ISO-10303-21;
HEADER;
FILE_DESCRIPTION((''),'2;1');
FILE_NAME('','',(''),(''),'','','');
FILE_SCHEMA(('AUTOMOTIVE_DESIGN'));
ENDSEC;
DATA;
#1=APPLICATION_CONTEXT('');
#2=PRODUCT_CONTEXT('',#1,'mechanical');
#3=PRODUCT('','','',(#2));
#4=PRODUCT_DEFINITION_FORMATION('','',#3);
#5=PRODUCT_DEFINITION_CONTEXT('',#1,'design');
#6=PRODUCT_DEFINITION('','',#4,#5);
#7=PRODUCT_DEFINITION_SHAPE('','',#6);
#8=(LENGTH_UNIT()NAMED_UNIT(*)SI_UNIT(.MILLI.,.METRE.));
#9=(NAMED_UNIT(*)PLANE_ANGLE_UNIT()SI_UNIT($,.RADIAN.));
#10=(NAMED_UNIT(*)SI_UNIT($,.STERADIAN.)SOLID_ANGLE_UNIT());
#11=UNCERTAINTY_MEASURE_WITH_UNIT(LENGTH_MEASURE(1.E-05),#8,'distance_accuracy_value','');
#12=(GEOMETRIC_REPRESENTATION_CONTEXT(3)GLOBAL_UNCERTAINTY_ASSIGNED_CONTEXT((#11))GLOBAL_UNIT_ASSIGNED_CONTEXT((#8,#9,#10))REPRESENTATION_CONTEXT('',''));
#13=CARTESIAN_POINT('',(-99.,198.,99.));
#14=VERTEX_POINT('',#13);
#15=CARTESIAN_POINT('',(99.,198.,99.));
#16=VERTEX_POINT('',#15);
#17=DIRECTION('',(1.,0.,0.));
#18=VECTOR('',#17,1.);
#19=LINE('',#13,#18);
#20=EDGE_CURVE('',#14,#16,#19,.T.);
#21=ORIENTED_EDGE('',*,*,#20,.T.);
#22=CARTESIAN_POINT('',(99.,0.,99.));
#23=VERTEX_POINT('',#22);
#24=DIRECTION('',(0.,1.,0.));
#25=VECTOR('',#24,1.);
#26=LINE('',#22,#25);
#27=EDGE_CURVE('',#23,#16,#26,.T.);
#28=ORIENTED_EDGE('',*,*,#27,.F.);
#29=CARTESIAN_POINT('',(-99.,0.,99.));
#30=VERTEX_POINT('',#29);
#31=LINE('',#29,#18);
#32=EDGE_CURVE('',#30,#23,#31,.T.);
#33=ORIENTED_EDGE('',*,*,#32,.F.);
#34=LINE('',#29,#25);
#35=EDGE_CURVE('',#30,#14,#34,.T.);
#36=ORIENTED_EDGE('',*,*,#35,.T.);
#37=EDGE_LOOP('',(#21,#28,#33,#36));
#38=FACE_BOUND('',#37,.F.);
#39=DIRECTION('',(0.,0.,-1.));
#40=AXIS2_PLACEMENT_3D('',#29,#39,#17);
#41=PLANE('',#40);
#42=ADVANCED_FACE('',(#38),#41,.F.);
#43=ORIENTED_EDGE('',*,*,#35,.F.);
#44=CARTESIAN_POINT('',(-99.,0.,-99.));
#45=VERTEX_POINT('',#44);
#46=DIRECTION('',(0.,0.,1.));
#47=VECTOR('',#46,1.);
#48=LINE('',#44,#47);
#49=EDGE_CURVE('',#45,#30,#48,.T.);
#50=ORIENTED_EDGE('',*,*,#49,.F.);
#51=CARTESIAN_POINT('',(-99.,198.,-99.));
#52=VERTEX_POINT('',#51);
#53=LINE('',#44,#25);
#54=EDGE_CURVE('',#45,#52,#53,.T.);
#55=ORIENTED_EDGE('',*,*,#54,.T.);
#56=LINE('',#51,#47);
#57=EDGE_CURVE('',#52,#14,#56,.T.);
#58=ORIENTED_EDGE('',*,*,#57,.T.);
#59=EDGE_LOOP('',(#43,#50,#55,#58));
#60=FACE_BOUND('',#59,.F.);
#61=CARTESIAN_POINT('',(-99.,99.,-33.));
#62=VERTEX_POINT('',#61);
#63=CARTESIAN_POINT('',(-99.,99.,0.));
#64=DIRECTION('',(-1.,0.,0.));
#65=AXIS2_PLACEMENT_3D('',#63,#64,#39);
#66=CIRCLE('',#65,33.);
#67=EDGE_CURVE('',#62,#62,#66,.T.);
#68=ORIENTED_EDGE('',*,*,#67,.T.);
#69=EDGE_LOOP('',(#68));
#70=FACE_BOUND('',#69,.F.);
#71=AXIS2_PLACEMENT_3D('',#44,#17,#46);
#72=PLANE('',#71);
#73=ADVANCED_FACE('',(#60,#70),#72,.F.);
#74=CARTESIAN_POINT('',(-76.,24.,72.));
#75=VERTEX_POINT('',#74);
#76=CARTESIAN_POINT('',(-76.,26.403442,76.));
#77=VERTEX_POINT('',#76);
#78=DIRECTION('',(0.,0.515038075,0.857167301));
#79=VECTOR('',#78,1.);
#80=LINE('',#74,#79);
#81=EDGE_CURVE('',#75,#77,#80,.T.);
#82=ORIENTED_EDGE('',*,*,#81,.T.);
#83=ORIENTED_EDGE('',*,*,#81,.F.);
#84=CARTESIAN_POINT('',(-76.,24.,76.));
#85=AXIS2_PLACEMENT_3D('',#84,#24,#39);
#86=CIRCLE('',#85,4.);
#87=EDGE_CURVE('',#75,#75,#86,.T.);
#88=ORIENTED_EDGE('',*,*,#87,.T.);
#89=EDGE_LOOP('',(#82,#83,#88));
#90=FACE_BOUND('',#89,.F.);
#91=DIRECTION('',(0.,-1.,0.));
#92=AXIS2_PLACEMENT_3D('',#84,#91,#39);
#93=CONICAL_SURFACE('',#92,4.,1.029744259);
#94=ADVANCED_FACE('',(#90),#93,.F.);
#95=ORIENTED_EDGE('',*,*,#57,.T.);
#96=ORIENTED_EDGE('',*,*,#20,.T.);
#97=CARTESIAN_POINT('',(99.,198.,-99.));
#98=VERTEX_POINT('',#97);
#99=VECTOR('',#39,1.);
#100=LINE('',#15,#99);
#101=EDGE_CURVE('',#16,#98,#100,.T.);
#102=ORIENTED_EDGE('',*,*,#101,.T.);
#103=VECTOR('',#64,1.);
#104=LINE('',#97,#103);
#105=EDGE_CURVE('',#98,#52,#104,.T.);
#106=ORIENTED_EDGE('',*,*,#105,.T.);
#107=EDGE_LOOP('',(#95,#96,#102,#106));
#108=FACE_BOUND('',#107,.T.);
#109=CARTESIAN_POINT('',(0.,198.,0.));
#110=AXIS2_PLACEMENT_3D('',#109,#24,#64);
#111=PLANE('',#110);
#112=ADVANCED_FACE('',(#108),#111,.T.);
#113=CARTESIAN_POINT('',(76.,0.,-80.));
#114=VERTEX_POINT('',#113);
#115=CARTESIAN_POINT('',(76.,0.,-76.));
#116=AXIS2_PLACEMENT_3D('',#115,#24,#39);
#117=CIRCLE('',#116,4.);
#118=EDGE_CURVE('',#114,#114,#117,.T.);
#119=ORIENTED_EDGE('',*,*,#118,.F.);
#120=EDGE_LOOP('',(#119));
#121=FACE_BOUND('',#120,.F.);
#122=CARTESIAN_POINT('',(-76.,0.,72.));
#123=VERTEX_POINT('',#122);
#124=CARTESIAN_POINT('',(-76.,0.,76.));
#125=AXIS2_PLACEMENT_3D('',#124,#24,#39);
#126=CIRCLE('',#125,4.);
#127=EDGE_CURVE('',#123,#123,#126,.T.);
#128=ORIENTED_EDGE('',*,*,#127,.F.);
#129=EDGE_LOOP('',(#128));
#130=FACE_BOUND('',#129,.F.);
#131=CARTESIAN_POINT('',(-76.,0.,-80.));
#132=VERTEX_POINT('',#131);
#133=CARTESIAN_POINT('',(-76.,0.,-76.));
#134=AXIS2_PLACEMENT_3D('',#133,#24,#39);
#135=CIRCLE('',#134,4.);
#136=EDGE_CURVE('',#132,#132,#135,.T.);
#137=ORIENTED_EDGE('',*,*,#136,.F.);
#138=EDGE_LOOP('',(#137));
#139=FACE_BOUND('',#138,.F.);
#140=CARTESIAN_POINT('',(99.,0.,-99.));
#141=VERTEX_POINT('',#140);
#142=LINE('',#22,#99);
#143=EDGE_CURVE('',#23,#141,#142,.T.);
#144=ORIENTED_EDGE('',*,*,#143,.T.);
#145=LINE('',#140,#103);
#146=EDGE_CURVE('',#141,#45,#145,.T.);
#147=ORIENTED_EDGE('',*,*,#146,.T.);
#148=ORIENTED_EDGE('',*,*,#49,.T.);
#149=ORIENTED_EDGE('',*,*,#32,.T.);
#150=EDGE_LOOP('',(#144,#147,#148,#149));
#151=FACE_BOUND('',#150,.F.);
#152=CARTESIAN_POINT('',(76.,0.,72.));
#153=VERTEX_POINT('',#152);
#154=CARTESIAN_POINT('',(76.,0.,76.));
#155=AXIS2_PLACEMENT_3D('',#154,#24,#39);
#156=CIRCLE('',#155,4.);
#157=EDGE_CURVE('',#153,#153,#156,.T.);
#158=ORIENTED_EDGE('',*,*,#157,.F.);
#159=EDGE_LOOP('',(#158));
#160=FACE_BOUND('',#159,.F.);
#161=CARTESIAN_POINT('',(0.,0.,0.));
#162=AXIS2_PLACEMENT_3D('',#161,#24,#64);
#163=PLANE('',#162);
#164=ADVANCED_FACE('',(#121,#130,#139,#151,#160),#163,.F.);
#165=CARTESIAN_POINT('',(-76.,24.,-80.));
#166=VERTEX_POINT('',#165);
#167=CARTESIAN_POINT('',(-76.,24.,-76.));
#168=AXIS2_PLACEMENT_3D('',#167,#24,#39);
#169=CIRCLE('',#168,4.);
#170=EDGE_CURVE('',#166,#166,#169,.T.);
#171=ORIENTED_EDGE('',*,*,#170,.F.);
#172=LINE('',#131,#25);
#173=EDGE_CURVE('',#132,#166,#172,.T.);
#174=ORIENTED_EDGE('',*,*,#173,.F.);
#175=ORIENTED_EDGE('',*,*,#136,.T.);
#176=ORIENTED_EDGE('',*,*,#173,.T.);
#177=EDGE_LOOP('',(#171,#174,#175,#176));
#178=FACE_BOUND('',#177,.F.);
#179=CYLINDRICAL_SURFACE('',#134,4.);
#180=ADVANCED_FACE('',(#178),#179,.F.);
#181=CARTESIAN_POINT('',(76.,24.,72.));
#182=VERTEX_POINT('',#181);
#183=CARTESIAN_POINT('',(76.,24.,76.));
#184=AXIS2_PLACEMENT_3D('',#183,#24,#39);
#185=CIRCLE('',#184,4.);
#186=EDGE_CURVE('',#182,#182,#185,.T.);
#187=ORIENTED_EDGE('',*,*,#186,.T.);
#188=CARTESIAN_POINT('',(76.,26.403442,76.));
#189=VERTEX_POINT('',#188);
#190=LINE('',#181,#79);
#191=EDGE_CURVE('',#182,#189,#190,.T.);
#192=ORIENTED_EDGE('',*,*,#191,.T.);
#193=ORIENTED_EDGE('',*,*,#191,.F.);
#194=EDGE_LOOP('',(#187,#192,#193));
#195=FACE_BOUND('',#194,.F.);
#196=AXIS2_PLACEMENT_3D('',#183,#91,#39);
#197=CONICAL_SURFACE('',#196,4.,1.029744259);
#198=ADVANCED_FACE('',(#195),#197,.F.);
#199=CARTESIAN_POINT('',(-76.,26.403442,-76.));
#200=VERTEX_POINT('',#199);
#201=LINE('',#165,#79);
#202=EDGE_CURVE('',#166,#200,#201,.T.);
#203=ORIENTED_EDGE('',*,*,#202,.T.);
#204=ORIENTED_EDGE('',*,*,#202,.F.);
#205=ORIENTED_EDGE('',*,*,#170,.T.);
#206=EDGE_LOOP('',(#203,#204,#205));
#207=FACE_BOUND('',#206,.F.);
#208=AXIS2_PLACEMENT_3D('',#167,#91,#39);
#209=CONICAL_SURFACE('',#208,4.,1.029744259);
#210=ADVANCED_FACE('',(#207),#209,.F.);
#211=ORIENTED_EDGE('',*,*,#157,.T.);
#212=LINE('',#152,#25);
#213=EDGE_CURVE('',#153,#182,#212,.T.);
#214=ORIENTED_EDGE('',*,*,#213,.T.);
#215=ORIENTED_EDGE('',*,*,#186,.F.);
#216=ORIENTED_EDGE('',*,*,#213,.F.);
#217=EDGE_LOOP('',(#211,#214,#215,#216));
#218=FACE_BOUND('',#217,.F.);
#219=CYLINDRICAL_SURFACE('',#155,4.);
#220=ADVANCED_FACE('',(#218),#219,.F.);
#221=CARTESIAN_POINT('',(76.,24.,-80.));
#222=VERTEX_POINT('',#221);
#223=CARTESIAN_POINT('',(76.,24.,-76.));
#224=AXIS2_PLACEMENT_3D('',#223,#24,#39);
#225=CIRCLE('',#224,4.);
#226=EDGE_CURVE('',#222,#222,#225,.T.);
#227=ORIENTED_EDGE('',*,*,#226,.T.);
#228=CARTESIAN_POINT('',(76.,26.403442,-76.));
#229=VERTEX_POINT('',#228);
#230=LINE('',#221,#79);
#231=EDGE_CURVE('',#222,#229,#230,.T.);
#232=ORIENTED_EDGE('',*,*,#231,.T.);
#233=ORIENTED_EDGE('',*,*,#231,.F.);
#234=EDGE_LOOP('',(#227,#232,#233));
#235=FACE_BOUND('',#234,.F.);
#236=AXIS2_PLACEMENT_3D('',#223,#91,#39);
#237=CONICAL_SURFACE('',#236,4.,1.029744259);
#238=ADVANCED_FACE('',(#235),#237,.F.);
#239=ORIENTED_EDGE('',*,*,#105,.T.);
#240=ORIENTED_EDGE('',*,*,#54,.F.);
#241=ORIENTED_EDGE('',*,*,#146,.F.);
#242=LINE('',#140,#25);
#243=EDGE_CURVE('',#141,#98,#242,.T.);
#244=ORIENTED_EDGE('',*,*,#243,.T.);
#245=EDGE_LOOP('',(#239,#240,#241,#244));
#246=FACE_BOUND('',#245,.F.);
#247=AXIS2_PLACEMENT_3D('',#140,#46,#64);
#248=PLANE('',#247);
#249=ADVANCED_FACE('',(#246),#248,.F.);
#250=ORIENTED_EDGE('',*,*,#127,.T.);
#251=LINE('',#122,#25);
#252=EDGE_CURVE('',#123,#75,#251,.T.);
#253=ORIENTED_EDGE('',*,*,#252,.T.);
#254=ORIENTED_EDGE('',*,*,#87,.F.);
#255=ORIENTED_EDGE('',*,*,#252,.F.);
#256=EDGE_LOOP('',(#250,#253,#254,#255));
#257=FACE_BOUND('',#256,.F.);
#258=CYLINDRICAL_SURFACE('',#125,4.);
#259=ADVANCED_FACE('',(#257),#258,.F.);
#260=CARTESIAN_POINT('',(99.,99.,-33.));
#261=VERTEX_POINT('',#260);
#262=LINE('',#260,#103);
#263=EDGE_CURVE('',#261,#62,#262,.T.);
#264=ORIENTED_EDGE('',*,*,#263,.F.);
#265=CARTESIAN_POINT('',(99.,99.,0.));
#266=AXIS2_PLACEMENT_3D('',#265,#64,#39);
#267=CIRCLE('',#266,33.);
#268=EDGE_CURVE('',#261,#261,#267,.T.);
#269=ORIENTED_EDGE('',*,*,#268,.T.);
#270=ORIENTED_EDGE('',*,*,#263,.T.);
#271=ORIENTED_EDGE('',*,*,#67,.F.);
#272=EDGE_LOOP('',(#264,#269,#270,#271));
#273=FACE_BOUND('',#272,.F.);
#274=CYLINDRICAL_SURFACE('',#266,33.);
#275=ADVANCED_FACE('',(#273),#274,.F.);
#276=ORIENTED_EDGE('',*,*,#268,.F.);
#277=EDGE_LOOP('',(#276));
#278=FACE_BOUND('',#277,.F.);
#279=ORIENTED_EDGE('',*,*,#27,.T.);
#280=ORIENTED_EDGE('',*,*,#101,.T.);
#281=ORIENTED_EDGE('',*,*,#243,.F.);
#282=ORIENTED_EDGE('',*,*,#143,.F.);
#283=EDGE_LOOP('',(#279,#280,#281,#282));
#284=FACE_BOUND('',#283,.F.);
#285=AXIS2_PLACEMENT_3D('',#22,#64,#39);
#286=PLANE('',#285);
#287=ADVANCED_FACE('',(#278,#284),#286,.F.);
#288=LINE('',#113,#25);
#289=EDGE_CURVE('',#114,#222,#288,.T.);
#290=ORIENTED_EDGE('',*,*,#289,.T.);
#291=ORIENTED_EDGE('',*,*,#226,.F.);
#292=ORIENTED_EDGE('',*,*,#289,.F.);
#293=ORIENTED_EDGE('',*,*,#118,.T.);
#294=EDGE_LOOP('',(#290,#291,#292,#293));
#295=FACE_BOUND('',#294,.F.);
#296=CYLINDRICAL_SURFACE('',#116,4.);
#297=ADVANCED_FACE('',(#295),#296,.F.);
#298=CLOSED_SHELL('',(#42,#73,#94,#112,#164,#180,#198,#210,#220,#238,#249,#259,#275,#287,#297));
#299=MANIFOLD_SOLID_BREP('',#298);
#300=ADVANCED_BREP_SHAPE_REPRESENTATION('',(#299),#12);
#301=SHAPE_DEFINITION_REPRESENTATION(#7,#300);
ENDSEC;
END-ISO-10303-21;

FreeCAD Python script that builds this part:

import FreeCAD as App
import Part
import Sketcher

V = App.Vector
Q = App.Units.Quantity


def add_polygon(sketch, points):
    """Adds a closed chain of lines whose ends are joined by coincident constraints."""
    first, n = sketch.GeometryCount, len(points)
    for a, b in zip(points, points[1:] + points[:1]):
        sketch.addGeometry(Part.LineSegment(App.Vector(*a, 0), App.Vector(*b, 0)), False)
    for i in range(n):
        sketch.addConstraint(Sketcher.Constraint("Coincident", first + i, 2, first + (i + 1) % n, 1))

doc = App.newDocument("Part")
body = doc.addObject("PartDesign::Body", "Body")

# Sketch on XZ plane
sketch1 = doc.addObject("Sketcher::SketchObject", "Sketch")
body.addObject(sketch1)
sketch1.AttachmentSupport = (doc.XZ_Plane, [""])
sketch1.MapMode = "FlatFace"
add_polygon(sketch1, [(-99, -99), (-99, 99), (99, 99), (99, -99)])  # lines 0-3
sketch1.addConstraint([
    Sketcher.Constraint("Vertical", 0),
    Sketcher.Constraint("Horizontal", 1),
    Sketcher.Constraint("Vertical", 2),
    Sketcher.Constraint("Horizontal", 3),
    Sketcher.Constraint("Symmetric", 0, 2, 2, 2, -1, 1),
    Sketcher.Constraint("Equal", 3, 0),
    Sketcher.Constraint("DistanceX", 1, 1, 1, 2, Q("198 mm")),
])
pad1 = doc.addObject("PartDesign::Pad", "Pad")
body.addObject(pad1)
pad1.Profile = sketch1
pad1.Length = 198
pad1.Reversed = True

# Sketch on YZ plane
sketch2 = doc.addObject("Sketcher::SketchObject", "Sketch001")
body.addObject(sketch2)
sketch2.AttachmentSupport = (doc.YZ_Plane, [""])
sketch2.MapMode = "FlatFace"
sketch2.AttachmentOffset = App.Placement(V(0, 0, 99), App.Rotation())
sketch2.addGeometry(Part.Circle(V(99, 0, 0), V(0, 0, 1), 33), False)
sketch2.addConstraint([
    Sketcher.Constraint("PointOnObject", 0, 3, -1),
    Sketcher.Constraint("Diameter", 0, Q("66 mm")),
    Sketcher.Constraint("DistanceX", -1, 1, 0, 3, Q("99 mm")),
])
doc.recompute()
hole = doc.addObject("PartDesign::Hole", "Hole")
body.addObject(hole)
hole.Profile = sketch2
hole.ThreadType = "None"
hole.Diameter = 66
hole.DepthType = "Dimension"
hole.Depth = 198
hole.DrillPoint = "Flat"

# Sketch on XZ plane
sketch3 = doc.addObject("Sketcher::SketchObject", "Sketch002")
body.addObject(sketch3)
sketch3.AttachmentSupport = (doc.XZ_Plane, [""])
sketch3.MapMode = "FlatFace"
sketch3.addGeometry([
    Part.Circle(V(-76, -76, 0), V(0, 0, 1), 4),
    Part.Circle(V(76, -76, 0), V(0, 0, 1), 4),
    Part.Circle(V(76, 76, 0), V(0, 0, 1), 4),
    Part.Circle(V(-76, 76, 0), V(0, 0, 1), 4),
], False)
sketch3.addConstraint([
    Sketcher.Constraint("Equal", 0, 1),
    Sketcher.Constraint("Equal", 1, 2),
    Sketcher.Constraint("Equal", 2, 3),
    Sketcher.Constraint("Symmetric", 0, 3, 2, 3, -1, 1),
    Sketcher.Constraint("Symmetric", 1, 3, 3, 3, -1, 1),
    Sketcher.Constraint("Symmetric", 0, 3, 1, 3, -2),
    Sketcher.Constraint("Diameter", 0, Q("8 mm")),
    Sketcher.Constraint("DistanceX", 0, 3, -1, 1, Q("76 mm")),
    Sketcher.Constraint("DistanceY", 0, 3, -1, 1, Q("76 mm")),
])
doc.recompute()
hole2 = doc.addObject("PartDesign::Hole", "Hole001")
body.addObject(hole2)
hole2.Profile = sketch3
hole2.ThreadType = "None"
hole2.Diameter = 8
hole2.DepthType = "Dimension"
hole2.Depth = 24
hole2.DrillPoint = "Angled"
hole2.DrillPointAngle = 118

doc.recompute()
